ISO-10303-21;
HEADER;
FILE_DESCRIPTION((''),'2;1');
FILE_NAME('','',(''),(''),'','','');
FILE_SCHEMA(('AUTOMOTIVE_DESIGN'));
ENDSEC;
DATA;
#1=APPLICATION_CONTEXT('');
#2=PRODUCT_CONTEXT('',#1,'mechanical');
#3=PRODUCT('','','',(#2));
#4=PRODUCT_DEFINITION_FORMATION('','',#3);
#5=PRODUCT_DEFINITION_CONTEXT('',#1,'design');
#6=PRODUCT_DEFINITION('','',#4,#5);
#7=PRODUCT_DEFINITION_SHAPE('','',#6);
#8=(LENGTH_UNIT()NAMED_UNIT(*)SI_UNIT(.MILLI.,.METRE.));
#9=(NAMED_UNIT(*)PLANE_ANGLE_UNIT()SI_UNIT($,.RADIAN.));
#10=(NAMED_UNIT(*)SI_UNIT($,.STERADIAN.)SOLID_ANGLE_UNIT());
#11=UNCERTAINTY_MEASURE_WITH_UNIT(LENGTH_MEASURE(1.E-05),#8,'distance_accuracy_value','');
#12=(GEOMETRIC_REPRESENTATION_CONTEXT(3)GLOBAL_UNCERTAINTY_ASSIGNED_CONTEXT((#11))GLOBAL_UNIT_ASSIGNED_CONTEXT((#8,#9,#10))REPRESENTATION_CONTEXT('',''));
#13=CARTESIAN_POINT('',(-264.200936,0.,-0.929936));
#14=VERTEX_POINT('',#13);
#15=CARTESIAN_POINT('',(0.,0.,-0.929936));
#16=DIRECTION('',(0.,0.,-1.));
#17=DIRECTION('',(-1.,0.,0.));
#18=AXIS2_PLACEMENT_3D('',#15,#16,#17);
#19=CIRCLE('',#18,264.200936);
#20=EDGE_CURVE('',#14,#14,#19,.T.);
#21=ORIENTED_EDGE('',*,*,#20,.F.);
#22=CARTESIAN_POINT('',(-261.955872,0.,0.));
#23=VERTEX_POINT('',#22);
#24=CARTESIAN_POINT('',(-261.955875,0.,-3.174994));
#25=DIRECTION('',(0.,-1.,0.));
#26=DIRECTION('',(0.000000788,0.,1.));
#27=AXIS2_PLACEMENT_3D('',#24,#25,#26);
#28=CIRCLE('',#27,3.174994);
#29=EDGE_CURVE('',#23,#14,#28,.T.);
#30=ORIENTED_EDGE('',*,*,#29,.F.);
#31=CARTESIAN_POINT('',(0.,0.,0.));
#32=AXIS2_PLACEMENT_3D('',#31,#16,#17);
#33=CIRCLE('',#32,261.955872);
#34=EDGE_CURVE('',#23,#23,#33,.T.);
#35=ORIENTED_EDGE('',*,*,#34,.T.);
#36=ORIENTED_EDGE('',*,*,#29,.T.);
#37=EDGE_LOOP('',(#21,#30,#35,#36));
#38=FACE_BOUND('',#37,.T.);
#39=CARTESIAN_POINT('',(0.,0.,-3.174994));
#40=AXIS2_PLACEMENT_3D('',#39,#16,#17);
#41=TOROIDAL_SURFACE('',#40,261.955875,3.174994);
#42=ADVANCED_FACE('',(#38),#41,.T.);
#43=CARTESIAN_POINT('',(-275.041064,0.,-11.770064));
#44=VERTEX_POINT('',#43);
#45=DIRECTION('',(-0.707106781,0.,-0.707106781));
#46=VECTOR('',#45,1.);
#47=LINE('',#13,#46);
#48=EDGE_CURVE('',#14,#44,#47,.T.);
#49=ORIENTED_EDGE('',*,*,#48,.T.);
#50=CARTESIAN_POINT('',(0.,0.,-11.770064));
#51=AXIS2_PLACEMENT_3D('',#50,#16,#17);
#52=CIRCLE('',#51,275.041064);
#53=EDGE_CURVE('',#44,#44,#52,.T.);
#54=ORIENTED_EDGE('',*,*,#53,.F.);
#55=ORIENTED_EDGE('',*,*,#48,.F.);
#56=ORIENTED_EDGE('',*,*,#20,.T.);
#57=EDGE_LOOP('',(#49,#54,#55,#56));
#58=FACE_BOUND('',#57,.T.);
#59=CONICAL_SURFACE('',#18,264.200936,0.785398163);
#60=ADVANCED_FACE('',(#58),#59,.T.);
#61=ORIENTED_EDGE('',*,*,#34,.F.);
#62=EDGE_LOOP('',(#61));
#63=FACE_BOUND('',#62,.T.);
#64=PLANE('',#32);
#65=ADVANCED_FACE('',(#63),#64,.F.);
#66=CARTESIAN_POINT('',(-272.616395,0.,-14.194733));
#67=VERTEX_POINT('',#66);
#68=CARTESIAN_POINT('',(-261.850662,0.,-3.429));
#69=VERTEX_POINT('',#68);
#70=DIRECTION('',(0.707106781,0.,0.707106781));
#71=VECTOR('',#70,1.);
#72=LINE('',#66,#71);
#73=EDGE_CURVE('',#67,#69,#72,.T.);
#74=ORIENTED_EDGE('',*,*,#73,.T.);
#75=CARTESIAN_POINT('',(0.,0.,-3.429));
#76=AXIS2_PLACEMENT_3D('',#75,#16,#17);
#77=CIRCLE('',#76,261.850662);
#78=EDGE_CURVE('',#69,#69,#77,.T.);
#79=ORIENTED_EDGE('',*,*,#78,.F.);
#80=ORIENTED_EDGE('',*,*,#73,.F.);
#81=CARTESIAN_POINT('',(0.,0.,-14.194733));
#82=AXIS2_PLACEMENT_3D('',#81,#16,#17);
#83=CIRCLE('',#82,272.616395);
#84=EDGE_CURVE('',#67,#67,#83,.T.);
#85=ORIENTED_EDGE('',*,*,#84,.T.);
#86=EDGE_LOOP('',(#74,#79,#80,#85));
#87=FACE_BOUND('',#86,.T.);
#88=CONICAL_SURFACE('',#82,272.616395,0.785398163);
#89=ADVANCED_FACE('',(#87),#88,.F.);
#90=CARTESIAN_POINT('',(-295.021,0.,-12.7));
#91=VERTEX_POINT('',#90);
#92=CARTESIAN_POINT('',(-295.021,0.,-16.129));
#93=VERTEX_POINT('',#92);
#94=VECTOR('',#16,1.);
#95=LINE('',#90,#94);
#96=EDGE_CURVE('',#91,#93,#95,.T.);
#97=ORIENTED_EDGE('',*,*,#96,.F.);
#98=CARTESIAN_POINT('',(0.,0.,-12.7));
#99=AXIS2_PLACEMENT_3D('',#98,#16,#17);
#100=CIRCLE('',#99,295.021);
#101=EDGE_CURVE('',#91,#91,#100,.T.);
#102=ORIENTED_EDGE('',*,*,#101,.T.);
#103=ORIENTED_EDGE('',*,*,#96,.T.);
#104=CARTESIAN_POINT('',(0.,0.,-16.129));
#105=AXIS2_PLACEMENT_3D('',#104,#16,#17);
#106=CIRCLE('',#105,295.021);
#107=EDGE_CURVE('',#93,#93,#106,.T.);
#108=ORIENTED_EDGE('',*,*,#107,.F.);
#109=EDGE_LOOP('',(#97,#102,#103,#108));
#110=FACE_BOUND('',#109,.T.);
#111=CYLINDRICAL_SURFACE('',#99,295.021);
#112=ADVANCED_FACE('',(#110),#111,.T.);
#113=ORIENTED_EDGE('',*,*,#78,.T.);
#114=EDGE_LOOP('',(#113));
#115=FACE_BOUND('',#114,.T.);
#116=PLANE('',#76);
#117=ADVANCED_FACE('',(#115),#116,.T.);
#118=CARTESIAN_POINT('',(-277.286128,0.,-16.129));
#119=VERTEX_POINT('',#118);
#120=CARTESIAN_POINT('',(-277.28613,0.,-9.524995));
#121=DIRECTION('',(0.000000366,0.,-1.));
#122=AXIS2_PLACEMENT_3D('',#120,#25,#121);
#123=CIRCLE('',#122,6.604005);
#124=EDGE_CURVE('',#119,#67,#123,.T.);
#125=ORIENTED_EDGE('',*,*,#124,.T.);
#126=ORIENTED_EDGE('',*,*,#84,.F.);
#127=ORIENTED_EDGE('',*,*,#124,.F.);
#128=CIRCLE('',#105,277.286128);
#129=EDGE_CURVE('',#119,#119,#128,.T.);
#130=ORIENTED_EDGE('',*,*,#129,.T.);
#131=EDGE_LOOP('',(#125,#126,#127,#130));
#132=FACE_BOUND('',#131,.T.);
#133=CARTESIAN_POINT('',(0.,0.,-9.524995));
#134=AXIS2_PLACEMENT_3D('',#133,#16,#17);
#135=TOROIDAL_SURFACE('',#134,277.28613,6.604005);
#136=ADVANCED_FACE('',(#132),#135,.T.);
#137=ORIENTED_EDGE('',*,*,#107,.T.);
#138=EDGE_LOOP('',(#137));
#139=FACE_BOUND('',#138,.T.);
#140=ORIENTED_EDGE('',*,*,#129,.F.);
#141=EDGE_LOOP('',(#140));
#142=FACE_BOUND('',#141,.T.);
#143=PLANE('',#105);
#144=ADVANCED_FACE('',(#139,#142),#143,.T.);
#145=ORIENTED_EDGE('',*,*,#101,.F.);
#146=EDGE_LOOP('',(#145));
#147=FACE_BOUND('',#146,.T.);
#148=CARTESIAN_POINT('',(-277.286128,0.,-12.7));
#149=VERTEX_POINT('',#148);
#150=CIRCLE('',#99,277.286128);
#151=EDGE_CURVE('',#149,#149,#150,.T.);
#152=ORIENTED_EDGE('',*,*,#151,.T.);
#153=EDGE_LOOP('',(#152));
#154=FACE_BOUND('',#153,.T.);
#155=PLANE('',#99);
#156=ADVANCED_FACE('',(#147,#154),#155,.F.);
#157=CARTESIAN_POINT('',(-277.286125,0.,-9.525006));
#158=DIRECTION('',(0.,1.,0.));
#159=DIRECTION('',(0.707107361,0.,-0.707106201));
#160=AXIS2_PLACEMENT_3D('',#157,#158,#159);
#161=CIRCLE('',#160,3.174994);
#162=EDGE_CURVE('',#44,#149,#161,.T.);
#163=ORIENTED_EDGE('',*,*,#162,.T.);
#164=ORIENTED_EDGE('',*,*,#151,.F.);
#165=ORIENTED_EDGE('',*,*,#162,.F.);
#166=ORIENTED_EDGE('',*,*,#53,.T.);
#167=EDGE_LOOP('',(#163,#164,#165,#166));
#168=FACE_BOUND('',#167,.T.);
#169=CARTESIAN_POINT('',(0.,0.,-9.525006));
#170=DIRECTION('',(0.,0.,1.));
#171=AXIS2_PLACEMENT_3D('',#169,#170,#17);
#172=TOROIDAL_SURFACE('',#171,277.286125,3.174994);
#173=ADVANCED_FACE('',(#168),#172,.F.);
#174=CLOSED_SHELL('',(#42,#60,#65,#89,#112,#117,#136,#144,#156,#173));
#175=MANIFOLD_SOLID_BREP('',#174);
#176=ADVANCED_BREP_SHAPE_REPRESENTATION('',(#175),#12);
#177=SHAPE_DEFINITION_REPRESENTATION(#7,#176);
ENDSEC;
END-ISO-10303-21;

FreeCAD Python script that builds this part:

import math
import FreeCAD as App
import Part
import Sketcher
Q = App.Units.Quantity

doc = App.newDocument("Part")
params = doc.addObject("Spreadsheet::Sheet", "Params")
for row, (alias, value) in enumerate([
    ("sketch1_radius", "0.2600002 in"),
    ("sketch1_height", "0.135 in"),
    ("revolution_angle", "360 deg"),
], start=1):
    params.set(f"A{row}", alias)
    params.set(f"B{row}", "=" + value)
    params.setAlias(f"B{row}", alias)

body = doc.addObject("PartDesign::Body", "Body")

# Sketch on XZ plane
sketch1 = doc.addObject("Sketcher::SketchObject", "Sketch")
body.addObject(sketch1)
sketch1.AttachmentSupport = (doc.XZ_Plane, [""])
sketch1.MapMode = "FlatFace"
sketch1.addGeometry([
    Part.LineSegment(App.Vector(0, -3.4, 0), App.Vector(0, 0, 0)),  # 0
    Part.LineSegment(App.Vector(0, 0, 0), App.Vector(-262, 0, 0)),  # 1
    Part.ArcOfCircle(Part.Circle(App.Vector(-262, -3.2, 0), App.Vector(0, 0, 1), 3.2), math.radians(90), math.radians(135)),  # 2
    Part.LineSegment(App.Vector(-264.2, -0.9, 0), App.Vector(-275, -11.8, 0)),  # 3
    Part.ArcOfCircle(Part.Circle(App.Vector(-277.3, -9.5, 0), App.Vector(0, 0, 1), 3.2), math.radians(-90), math.radians(-45)),  # 4
    Part.LineSegment(App.Vector(-277.3, -12.7, 0), App.Vector(-295, -12.7, 0)),  # 5
    Part.LineSegment(App.Vector(-295, -12.7, 0), App.Vector(-295, -16.1, 0)),  # 6
    Part.LineSegment(App.Vector(-295, -16.1, 0), App.Vector(-277.3, -16.1, 0)),  # 7
    Part.ArcOfCircle(Part.Circle(App.Vector(-277.3, -9.5, 0), App.Vector(0, 0, 1), 6.6), math.radians(-90), math.radians(-45)),  # 8
    Part.LineSegment(App.Vector(-272.6, -14.2, 0), App.Vector(-261.9, -3.4, 0)),  # 9
    Part.LineSegment(App.Vector(-261.9, -3.4, 0), App.Vector(0, -3.4, 0)),  # 10
], False)
sketch1.addConstraint([
    Sketcher.Constraint("Coincident", 0, 2, 1, 1),
    Sketcher.Constraint("Tangent", 1, 2, 2, 1),
    Sketcher.Constraint("Tangent", 2, 2, 3, 1),
    Sketcher.Constraint("Tangent", 3, 2, 4, 2),
    Sketcher.Constraint("Tangent", 4, 1, 5, 1),
    Sketcher.Constraint("Coincident", 5, 2, 6, 1),
    Sketcher.Constraint("Coincident", 6, 2, 7, 1),
    Sketcher.Constraint("Tangent", 7, 2, 8, 1),
    Sketcher.Constraint("Tangent", 8, 2, 9, 1),
    Sketcher.Constraint("Coincident", 9, 2, 10, 1),
    Sketcher.Constraint("Coincident", 10, 2, 0, 1),
    Sketcher.Constraint("Vertical", 0),
    Sketcher.Constraint("Horizontal", 1),
    Sketcher.Constraint("Horizontal", 5),
    Sketcher.Constraint("Vertical", 6),
    Sketcher.Constraint("Horizontal", 7),
    Sketcher.Constraint("Horizontal", 10),
    Sketcher.Constraint("Coincident", 0, 2, -1, 1),
    Sketcher.Constraint("Equal", 2, 4),
    Sketcher.Constraint("Parallel", 3, 9),
    Sketcher.Constraint("Vertical", 4, 1, 7, 2),
    Sketcher.Constraint("Equal", 0, 6),
    Sketcher.Constraint("Radius", 8, Q("0.2600002 in")),
    Sketcher.Constraint("Angle", 3, Q("-135 deg")),
    Sketcher.Constraint("DistanceY", 4, 1, -1, 1, Q("0.5 in")),
    Sketcher.Constraint("DistanceY", 0, 1, 0, 2, Q("0.135 in")),
    Sketcher.Constraint("DistanceY", 8, 3, 2, 3, Q("0.25 in")),
    Sketcher.Constraint("DistanceX", 5, 2, -1, 1, Q("11.615 in")),
    Sketcher.Constraint("DistanceX", 1, 2, 1, 1, 261.955872),
])
sketch1.setExpression("Constraints[22]", "Params.sketch1_radius")
sketch1.setExpression("Constraints[25]", "Params.sketch1_height")
revolution = doc.addObject("PartDesign::Revolution", "Revolution")
body.addObject(revolution)
revolution.Profile = sketch1
revolution.ReferenceAxis = (sketch1, ["V_Axis"])
revolution.setExpression("Angle", "Params.revolution_angle")

doc.recompute()
